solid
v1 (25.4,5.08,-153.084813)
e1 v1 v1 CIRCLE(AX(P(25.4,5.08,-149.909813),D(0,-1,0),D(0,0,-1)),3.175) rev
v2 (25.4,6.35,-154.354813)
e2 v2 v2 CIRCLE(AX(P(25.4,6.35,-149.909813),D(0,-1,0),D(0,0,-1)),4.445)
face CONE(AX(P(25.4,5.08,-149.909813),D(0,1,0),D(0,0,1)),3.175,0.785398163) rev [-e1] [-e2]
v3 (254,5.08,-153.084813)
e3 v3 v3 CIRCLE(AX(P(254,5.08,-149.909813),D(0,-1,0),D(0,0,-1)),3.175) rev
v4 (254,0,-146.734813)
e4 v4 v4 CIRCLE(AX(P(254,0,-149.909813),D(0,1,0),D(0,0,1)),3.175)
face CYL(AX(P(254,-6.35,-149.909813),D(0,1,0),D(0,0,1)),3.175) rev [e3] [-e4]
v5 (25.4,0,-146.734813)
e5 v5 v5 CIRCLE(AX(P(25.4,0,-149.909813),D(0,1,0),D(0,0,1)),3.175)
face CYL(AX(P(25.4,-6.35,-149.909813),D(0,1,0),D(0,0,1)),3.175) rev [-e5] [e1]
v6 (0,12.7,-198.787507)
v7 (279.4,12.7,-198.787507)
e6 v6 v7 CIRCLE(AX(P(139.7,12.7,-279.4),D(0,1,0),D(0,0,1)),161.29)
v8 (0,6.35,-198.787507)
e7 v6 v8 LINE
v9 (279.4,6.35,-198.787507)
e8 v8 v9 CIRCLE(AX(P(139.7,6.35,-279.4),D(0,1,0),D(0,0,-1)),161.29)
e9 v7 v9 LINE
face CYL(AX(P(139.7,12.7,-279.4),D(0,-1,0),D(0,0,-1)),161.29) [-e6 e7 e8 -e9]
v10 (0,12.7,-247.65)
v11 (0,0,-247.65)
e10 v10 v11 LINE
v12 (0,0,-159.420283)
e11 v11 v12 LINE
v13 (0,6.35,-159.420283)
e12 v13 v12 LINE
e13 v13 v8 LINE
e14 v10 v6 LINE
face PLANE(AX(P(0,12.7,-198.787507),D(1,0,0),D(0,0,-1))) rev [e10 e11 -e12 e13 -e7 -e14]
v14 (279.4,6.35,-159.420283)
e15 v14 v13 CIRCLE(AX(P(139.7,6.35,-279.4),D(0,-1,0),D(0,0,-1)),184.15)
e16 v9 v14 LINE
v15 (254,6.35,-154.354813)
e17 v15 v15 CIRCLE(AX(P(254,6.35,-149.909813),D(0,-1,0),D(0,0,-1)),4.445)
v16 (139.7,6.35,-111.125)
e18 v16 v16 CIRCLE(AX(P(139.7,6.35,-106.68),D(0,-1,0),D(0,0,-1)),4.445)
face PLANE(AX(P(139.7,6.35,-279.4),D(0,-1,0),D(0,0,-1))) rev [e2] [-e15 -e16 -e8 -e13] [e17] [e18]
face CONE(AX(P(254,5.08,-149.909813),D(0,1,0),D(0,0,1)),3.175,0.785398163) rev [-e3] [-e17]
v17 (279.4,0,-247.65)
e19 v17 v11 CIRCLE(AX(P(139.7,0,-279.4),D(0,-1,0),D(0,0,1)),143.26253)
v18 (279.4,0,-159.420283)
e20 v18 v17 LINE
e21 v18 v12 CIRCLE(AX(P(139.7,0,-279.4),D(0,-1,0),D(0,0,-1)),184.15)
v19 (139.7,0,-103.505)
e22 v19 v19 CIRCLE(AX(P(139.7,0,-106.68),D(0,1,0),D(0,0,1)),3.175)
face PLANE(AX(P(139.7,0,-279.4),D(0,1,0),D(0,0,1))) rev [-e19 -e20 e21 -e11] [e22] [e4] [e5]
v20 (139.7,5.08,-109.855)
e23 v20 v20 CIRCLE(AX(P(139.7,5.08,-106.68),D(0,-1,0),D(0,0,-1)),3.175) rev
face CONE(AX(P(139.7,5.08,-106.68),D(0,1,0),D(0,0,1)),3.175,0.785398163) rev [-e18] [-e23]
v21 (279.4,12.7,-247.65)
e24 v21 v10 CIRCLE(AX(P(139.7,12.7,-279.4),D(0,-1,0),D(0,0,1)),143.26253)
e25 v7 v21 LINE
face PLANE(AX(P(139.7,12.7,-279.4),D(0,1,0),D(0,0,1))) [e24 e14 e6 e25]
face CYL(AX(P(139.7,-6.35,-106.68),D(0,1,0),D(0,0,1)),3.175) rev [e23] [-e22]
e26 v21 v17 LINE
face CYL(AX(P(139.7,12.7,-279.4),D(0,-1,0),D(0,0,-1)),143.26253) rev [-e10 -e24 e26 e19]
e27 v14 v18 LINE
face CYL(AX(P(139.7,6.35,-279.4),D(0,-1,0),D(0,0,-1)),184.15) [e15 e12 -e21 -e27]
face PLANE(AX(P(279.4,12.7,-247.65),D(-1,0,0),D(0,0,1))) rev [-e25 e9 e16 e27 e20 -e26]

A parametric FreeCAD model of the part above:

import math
import FreeCAD as App
import Part
import Sketcher
Q = App.Units.Quantity


def edges_at(feature, points):
    """Names of the edges that pass closest to the given points."""
    edges = feature.Shape.Edges
    near = lambda p: min(range(len(edges)), key=lambda i: edges[i].distToShape(Part.Vertex(*p))[0])
    return sorted({f"Edge{near(p) + 1}" for p in points})

doc = App.newDocument("Part")
params = doc.addObject("Spreadsheet::Sheet", "Params")
for row, (alias, value) in enumerate([
    ("sketch1_radius", "6.35 in"),
    ("pad1_length", "0.5 in"),
    ("sketch2_radius", "6.35 in"),
    ("sketch2_radius2", "7.25 in"),
    ("pad2_length", "0.25 in"),
    ("sketch3_diameter", "0.25 in"),
    ("pocket1_length", "0.5 in"),
    ("chamfer_size", "0.05 in"),
], start=1):
    params.set(f"A{row}", alias)
    params.set(f"B{row}", "=" + value)
    params.setAlias(f"B{row}", alias)

body = doc.addObject("PartDesign::Body", "Body")

sketch1 = body.newObject("Sketcher::SketchObject", "Sketch")
sketch1.AttachmentSupport = (doc.getObject("XZ_Plane"), [""])
sketch1.MapMode = "FlatFace"
sketch1.addGeometry(Part.LineSegment(App.Vector(279, -199, 0), App.Vector(279, -248, 0)), False)
sketch1.addGeometry(Part.ArcOfCircle(Part.Circle(App.Vector(140, -279, 0), App.Vector(0, 0, 1), 143), math.radians(13), math.radians(167)), False)
sketch1.addGeometry(Part.LineSegment(App.Vector(0, -248, 0), App.Vector(0, -199, 0)), False)
sketch1.addGeometry(Part.ArcOfCircle(Part.Circle(App.Vector(140, -279, 0), App.Vector(0, 0, 1), 161), math.radians(30), math.radians(150)), False)
sketch1.addConstraint(Sketcher.Constraint("Coincident", 0, 2, 1, 1))
sketch1.addConstraint(Sketcher.Constraint("Coincident", 1, 2, 2, 1))
sketch1.addConstraint(Sketcher.Constraint("Coincident", 2, 2, 3, 2))
sketch1.addConstraint(Sketcher.Constraint("Coincident", 3, 1, 0, 1))
sketch1.addConstraint(Sketcher.Constraint("Vertical", 0))
sketch1.addConstraint(Sketcher.Constraint("Vertical", 2))
sketch1.addConstraint(Sketcher.Constraint("Coincident", 3, 3, 1, 3))
sketch1.addConstraint(Sketcher.Constraint("PointOnObject", 1, 2, -2))
sketch1.addConstraint(Sketcher.Constraint("Horizontal", 0, 2, 1, 2))
sketch1.addConstraint(Sketcher.Constraint("Radius", 3, Q("6.35 in")))
sketch1.addConstraint(Sketcher.Constraint("DistanceY", 1, 3, -1, 1, Q("11 in")))
sketch1.addConstraint(Sketcher.Constraint("DistanceX", -1, 1, 0, 2, Q("11 in")))
sketch1.addConstraint(Sketcher.Constraint("DistanceY", 0, 2, -1, 1, Q("9.75 in")))
sketch1.setExpression("Constraints[9]", "Params.sketch1_radius")
pad1 = body.newObject("PartDesign::Pad", "Pad")
pad1.Profile = sketch1
pad1.setExpression("Length", "Params.pad1_length")
pad1.Reversed = True

sketch2 = body.newObject("Sketcher::SketchObject", "Sketch001")
sketch2.AttachmentSupport = (doc.getObject("XZ_Plane"), [""])
sketch2.MapMode = "FlatFace"
sketch2.addGeometry(Part.LineSegment(App.Vector(0, -159, 0), App.Vector(0, -199, 0)), False)
sketch2.addGeometry(Part.ArcOfCircle(Part.Circle(App.Vector(140, -279, 0), App.Vector(0, 0, 1), 161), math.radians(30), math.radians(150)), False)
sketch2.addGeometry(Part.LineSegment(App.Vector(279, -199, 0), App.Vector(279, -159, 0)), False)
sketch2.addGeometry(Part.ArcOfCircle(Part.Circle(App.Vector(140, -279, 0), App.Vector(0, 0, 1), 184), math.radians(41), math.radians(139)), False)
sketch2.addConstraint(Sketcher.Constraint("Coincident", 0, 2, 1, 2))
sketch2.addConstraint(Sketcher.Constraint("Coincident", 1, 1, 2, 1))
sketch2.addConstraint(Sketcher.Constraint("Coincident", 2, 2, 3, 1))
sketch2.addConstraint(Sketcher.Constraint("Coincident", 3, 2, 0, 1))
sketch2.addConstraint(Sketcher.Constraint("Vertical", 0))
sketch2.addConstraint(Sketcher.Constraint("Vertical", 2))
sketch2.addConstraint(Sketcher.Constraint("Coincident", 3, 3, 1, 3))
sketch2.addConstraint(Sketcher.Constraint("PointOnObject", 0, 2, -2))
sketch2.addConstraint(Sketcher.Constraint("Horizontal", 0, 2, 1, 1))
sketch2.addConstraint(Sketcher.Constraint("Radius", 1, Q("6.35 in")))
sketch2.addConstraint(Sketcher.Constraint("Radius", 3, Q("7.25 in")))
sketch2.addConstraint(Sketcher.Constraint("DistanceY", 1, 3, -1, 1, Q("11 in")))
sketch2.addConstraint(Sketcher.Constraint("DistanceX", -1, 1, 1, 1, Q("11 in")))
sketch2.setExpression("Constraints[9]", "Params.sketch2_radius")
sketch2.setExpression("Constraints[10]", "Params.sketch2_radius2")
pad2 = body.newObject("PartDesign::Pad", "Pad001")
pad2.Profile = sketch2
pad2.setExpression("Length", "Params.pad2_length")
pad2.Reversed = True

sketch3 = body.newObject("Sketcher::SketchObject", "Sketch002")
sketch3.AttachmentSupport = (doc.getObject("XZ_Plane"), [""])
sketch3.MapMode = "FlatFace"
sketch3.AttachmentOffset = App.Placement(App.Vector(0, 0, -0.25 * 25.4), App.Rotation())
sketch3.addGeometry(Part.Circle(App.Vector(139.7, -106.7, 0), App.Vector(0, 0, 1), 3.2), False)
sketch3.addGeometry(Part.Circle(App.Vector(25.4, -149.9, 0), App.Vector(0, 0, 1), 3.2), False)
sketch3.addGeometry(Part.Circle(App.Vector(254, -149.9, 0), App.Vector(0, 0, 1), 3.2), False)
sketch3.addConstraint(Sketcher.Constraint("Equal", 0, 1))
sketch3.addConstraint(Sketcher.Constraint("Equal", 1, 2))
sketch3.addConstraint(Sketcher.Constraint("Horizontal", 1, 3, 2, 3))
sketch3.addConstraint(Sketcher.Constraint("Diameter", 0, Q("0.25 in")))
sketch3.addConstraint(Sketcher.Constraint("DistanceX", -1, 1, 1, 3, Q("1 in")))
sketch3.addConstraint(Sketcher.Constraint("DistanceX", -1, 1, 2, 3, Q("10 in")))
sketch3.addConstraint(Sketcher.Constraint("DistanceX", -1, 1, 0, 3, Q("5.5 in")))
sketch3.addConstraint(Sketcher.Constraint("DistanceY", 0, 3, -1, 1, Q("4.2 in")))
sketch3.addConstraint(Sketcher.Constraint("DistanceY", 1, 3, -1, 1, 149.909813))
sketch3.setExpression("Constraints[3]", "Params.sketch3_diameter")
pocket1 = body.newObject("PartDesign::Pocket", "Pocket")
pocket1.Profile = sketch3
pocket1.setExpression("Length", "Params.pocket1_length")
pocket1.Reversed = True
doc.recompute()

chamfer = body.newObject("PartDesign::Chamfer", "Chamfer")
chamfer.Base = (pocket1, edges_at(pocket1, [(139.7, 6.35, -109.855), (25.4, 6.35, -153.085), (254, 6.35, -153.085)]))
chamfer.setExpression("Size", "Params.chamfer_size")

doc.recompute()
